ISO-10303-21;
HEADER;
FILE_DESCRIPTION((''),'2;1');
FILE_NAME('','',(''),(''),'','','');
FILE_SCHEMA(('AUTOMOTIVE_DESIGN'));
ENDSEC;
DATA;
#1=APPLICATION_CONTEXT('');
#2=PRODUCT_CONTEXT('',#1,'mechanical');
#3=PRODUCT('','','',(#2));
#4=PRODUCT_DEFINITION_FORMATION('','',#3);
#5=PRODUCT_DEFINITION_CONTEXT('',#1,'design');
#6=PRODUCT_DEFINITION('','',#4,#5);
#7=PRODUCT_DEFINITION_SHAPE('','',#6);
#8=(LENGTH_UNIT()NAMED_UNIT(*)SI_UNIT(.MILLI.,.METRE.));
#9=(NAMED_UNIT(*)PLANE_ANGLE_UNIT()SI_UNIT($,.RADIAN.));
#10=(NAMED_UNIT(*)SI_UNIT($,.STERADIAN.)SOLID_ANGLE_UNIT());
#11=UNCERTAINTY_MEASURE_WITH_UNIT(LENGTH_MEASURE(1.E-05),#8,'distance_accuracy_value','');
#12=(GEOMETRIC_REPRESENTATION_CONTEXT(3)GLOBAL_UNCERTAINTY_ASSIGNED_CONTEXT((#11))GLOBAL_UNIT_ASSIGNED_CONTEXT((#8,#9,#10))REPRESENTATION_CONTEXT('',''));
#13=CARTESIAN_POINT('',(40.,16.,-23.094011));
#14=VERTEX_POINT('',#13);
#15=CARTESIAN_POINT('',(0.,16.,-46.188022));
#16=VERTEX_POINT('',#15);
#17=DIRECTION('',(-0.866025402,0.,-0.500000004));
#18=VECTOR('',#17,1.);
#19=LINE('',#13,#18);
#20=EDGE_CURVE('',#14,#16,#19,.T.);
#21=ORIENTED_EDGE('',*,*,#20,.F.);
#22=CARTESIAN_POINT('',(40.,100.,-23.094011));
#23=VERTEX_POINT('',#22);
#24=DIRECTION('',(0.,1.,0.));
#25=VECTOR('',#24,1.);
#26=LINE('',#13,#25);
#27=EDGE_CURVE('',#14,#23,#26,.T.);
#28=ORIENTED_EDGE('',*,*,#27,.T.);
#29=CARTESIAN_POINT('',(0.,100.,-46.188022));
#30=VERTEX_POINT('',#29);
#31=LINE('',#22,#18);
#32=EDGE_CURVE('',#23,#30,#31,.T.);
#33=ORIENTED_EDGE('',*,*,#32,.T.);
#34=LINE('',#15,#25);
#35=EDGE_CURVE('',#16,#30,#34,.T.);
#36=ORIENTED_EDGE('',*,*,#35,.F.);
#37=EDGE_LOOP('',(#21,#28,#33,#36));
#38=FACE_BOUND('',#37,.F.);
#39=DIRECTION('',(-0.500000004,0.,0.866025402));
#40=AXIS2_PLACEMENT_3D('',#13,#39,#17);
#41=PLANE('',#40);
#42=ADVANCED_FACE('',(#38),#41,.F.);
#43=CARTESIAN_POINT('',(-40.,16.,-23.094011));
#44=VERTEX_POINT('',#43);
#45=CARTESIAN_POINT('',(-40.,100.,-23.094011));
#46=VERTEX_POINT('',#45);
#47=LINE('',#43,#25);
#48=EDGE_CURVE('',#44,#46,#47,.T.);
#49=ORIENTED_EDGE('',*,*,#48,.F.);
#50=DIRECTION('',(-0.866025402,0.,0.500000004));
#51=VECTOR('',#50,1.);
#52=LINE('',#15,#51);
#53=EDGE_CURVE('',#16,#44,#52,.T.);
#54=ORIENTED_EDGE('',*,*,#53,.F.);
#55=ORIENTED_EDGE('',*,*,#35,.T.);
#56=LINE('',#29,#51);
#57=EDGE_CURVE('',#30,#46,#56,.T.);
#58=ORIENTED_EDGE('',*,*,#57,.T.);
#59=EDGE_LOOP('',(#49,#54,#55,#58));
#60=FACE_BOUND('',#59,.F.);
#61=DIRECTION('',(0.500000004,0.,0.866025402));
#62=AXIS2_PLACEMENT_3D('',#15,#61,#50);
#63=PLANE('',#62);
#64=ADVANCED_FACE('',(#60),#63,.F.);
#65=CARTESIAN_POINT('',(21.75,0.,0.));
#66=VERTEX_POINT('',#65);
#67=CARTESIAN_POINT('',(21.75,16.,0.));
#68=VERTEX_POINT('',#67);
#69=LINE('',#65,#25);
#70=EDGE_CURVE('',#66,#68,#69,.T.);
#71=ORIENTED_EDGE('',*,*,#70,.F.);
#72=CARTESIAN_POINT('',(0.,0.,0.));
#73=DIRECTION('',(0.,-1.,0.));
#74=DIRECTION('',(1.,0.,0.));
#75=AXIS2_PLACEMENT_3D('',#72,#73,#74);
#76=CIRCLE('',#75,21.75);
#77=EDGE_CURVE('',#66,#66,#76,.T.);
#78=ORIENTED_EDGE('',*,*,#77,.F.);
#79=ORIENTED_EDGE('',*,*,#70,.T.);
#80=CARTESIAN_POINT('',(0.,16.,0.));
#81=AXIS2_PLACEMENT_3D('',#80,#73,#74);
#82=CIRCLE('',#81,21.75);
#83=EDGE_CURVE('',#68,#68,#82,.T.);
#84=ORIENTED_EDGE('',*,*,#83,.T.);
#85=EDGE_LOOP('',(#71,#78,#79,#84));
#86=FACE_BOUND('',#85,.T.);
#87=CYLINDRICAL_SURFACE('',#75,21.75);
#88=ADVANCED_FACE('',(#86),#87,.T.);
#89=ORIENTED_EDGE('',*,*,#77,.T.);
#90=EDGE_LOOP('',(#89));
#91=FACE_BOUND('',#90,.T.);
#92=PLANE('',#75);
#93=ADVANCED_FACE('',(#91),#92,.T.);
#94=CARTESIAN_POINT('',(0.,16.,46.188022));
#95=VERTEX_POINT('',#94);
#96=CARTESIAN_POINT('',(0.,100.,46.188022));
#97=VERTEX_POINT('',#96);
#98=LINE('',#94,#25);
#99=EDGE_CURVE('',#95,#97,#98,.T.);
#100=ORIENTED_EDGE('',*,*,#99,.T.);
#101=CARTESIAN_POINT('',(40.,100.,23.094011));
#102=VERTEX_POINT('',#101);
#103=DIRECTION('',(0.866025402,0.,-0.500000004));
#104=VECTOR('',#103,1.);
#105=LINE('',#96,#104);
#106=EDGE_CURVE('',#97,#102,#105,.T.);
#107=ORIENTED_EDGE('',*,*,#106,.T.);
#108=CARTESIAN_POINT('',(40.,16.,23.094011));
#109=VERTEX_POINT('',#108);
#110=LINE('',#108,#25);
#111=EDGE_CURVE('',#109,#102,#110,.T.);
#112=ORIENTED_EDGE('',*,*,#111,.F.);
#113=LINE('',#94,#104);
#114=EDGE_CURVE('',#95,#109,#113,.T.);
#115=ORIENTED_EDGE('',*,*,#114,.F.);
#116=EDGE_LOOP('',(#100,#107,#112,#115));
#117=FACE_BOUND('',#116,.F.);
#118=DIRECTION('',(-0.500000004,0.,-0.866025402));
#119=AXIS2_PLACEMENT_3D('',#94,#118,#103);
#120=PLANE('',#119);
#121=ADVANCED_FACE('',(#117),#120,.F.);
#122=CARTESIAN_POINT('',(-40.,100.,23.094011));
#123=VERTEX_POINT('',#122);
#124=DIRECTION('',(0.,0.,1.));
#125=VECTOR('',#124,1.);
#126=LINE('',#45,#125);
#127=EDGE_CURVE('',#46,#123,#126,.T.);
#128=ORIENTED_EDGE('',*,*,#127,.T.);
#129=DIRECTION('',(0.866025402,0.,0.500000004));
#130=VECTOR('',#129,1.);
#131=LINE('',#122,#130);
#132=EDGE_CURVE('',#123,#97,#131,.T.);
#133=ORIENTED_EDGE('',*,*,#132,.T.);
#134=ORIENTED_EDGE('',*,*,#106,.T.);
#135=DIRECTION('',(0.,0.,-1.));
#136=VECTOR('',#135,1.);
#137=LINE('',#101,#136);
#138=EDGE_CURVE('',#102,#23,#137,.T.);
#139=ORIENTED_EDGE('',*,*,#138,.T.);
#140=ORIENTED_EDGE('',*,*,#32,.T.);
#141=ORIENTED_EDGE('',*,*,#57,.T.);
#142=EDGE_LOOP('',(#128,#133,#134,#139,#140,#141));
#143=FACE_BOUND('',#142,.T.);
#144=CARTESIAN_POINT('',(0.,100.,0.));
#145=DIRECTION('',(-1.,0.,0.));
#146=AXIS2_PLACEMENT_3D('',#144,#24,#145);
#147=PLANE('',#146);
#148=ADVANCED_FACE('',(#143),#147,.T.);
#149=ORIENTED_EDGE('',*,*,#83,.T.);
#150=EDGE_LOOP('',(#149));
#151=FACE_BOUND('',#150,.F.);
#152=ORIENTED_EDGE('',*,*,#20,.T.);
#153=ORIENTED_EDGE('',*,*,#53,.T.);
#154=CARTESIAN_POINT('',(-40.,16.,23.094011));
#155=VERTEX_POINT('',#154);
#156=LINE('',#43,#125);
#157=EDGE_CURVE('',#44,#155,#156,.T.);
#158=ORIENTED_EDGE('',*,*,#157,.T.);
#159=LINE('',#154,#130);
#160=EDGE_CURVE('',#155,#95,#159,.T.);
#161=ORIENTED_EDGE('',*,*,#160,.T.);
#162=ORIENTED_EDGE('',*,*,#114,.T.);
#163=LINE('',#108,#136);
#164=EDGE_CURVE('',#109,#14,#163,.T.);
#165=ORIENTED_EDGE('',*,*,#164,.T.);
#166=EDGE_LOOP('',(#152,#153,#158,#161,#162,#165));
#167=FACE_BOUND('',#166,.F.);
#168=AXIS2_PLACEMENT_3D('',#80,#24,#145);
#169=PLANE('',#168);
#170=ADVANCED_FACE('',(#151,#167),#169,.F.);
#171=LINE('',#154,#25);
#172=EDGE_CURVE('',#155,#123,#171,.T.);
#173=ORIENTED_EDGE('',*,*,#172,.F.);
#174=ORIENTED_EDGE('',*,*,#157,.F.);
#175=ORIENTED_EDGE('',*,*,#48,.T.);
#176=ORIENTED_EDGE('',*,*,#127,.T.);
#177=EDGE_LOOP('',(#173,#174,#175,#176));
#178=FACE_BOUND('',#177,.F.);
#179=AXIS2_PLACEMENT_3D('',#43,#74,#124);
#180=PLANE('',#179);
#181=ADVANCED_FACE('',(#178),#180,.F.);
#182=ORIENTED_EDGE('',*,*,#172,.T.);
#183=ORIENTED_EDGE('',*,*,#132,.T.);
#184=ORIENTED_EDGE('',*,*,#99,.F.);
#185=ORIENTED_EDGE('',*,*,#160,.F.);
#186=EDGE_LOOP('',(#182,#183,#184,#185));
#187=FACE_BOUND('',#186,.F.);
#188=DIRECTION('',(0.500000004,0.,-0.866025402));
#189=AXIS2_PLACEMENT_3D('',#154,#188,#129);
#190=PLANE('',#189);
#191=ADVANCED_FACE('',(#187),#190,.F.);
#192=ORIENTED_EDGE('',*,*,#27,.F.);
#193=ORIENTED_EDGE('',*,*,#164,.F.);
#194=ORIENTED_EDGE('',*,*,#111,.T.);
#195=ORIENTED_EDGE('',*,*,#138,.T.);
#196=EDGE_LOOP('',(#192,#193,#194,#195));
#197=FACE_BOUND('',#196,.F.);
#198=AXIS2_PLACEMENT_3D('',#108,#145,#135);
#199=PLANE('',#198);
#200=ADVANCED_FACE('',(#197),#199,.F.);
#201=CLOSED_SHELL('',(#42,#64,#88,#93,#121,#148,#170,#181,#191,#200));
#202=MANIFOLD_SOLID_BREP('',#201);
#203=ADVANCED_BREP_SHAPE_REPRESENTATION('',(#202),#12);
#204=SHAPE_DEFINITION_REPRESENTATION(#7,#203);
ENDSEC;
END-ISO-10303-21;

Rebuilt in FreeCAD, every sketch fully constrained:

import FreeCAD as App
import Part
import Sketcher
Q = App.Units.Quantity


def add_polygon(sketch, points):
    """Adds a closed chain of lines whose ends are joined by coincident constraints."""
    first, n = sketch.GeometryCount, len(points)
    for a, b in zip(points, points[1:] + points[:1]):
        sketch.addGeometry(Part.LineSegment(App.Vector(*a, 0), App.Vector(*b, 0)), False)
    for i in range(n):
        sketch.addConstraint(Sketcher.Constraint("Coincident", first + i, 2, first + (i + 1) % n, 1))

doc = App.newDocument("Part")
params = doc.addObject("Spreadsheet::Sheet", "Params")
for row, (alias, value) in enumerate([
    ("sketch1_diameter", "43.5 mm"),
    ("pad1_length", "16 mm"),
    ("pad2_length", "84 mm"),
], start=1):
    params.set(f"A{row}", alias)
    params.set(f"B{row}", "=" + value)
    params.setAlias(f"B{row}", alias)

body = doc.addObject("PartDesign::Body", "Body")

# Sketch on XZ plane
sketch1 = doc.addObject("Sketcher::SketchObject", "Sketch")
body.addObject(sketch1)
sketch1.AttachmentSupport = (doc.XZ_Plane, [""])
sketch1.MapMode = "FlatFace"
sketch1.addGeometry(Part.Circle(App.Vector(0, 0, 0), App.Vector(0, 0, 1), 22), False)
sketch1.addConstraint([
    Sketcher.Constraint("Coincident", 0, 3, -1, 1),
    Sketcher.Constraint("Diameter", 0, Q("43.5 mm")),
])
sketch1.setExpression("Constraints[1]", "Params.sketch1_diameter")
pad1 = doc.addObject("PartDesign::Pad", "Pad")
body.addObject(pad1)
pad1.Profile = sketch1
pad1.setExpression("Length", "Params.pad1_length")
pad1.Reversed = True

# Sketch on XZ plane
sketch2 = doc.addObject("Sketcher::SketchObject", "Sketch001")
body.addObject(sketch2)
sketch2.AttachmentSupport = (doc.XZ_Plane, [""])
sketch2.MapMode = "FlatFace"
sketch2.AttachmentOffset = App.Placement(App.Vector(0, 0, -16), App.Rotation())
add_polygon(sketch2, [(-40, -23), (-40, 23), (0, 46), (40, 23), (40, -23), (0, -46)])  # lines 0-5
sketch2.addConstraint([
    Sketcher.Constraint("Vertical", 0),
    Sketcher.Constraint("Vertical", 3),
    Sketcher.Constraint("Symmetric", 0, 2, 3, 2, -1, 1),
    Sketcher.Constraint("Symmetric", 1, 2, 4, 2, -1, 1),
    Sketcher.Constraint("PointOnObject", 1, 2, -2),
    Sketcher.Constraint("Parallel", 2, 5),
    Sketcher.Constraint("Horizontal", 0, 2, 2, 2),
    Sketcher.Constraint("Angle", 1, Q("30 deg")),
    Sketcher.Constraint("DistanceX", 0, 2, -1, 1, Q("40 mm")),
    Sketcher.Constraint("DistanceY", 0, 1, 0, 2, Q("46.188022 mm")),
])
pad2 = doc.addObject("PartDesign::Pad", "Pad001")
body.addObject(pad2)
pad2.Profile = sketch2
pad2.setExpression("Length", "Params.pad2_length")
pad2.Reversed = True

doc.recompute()
